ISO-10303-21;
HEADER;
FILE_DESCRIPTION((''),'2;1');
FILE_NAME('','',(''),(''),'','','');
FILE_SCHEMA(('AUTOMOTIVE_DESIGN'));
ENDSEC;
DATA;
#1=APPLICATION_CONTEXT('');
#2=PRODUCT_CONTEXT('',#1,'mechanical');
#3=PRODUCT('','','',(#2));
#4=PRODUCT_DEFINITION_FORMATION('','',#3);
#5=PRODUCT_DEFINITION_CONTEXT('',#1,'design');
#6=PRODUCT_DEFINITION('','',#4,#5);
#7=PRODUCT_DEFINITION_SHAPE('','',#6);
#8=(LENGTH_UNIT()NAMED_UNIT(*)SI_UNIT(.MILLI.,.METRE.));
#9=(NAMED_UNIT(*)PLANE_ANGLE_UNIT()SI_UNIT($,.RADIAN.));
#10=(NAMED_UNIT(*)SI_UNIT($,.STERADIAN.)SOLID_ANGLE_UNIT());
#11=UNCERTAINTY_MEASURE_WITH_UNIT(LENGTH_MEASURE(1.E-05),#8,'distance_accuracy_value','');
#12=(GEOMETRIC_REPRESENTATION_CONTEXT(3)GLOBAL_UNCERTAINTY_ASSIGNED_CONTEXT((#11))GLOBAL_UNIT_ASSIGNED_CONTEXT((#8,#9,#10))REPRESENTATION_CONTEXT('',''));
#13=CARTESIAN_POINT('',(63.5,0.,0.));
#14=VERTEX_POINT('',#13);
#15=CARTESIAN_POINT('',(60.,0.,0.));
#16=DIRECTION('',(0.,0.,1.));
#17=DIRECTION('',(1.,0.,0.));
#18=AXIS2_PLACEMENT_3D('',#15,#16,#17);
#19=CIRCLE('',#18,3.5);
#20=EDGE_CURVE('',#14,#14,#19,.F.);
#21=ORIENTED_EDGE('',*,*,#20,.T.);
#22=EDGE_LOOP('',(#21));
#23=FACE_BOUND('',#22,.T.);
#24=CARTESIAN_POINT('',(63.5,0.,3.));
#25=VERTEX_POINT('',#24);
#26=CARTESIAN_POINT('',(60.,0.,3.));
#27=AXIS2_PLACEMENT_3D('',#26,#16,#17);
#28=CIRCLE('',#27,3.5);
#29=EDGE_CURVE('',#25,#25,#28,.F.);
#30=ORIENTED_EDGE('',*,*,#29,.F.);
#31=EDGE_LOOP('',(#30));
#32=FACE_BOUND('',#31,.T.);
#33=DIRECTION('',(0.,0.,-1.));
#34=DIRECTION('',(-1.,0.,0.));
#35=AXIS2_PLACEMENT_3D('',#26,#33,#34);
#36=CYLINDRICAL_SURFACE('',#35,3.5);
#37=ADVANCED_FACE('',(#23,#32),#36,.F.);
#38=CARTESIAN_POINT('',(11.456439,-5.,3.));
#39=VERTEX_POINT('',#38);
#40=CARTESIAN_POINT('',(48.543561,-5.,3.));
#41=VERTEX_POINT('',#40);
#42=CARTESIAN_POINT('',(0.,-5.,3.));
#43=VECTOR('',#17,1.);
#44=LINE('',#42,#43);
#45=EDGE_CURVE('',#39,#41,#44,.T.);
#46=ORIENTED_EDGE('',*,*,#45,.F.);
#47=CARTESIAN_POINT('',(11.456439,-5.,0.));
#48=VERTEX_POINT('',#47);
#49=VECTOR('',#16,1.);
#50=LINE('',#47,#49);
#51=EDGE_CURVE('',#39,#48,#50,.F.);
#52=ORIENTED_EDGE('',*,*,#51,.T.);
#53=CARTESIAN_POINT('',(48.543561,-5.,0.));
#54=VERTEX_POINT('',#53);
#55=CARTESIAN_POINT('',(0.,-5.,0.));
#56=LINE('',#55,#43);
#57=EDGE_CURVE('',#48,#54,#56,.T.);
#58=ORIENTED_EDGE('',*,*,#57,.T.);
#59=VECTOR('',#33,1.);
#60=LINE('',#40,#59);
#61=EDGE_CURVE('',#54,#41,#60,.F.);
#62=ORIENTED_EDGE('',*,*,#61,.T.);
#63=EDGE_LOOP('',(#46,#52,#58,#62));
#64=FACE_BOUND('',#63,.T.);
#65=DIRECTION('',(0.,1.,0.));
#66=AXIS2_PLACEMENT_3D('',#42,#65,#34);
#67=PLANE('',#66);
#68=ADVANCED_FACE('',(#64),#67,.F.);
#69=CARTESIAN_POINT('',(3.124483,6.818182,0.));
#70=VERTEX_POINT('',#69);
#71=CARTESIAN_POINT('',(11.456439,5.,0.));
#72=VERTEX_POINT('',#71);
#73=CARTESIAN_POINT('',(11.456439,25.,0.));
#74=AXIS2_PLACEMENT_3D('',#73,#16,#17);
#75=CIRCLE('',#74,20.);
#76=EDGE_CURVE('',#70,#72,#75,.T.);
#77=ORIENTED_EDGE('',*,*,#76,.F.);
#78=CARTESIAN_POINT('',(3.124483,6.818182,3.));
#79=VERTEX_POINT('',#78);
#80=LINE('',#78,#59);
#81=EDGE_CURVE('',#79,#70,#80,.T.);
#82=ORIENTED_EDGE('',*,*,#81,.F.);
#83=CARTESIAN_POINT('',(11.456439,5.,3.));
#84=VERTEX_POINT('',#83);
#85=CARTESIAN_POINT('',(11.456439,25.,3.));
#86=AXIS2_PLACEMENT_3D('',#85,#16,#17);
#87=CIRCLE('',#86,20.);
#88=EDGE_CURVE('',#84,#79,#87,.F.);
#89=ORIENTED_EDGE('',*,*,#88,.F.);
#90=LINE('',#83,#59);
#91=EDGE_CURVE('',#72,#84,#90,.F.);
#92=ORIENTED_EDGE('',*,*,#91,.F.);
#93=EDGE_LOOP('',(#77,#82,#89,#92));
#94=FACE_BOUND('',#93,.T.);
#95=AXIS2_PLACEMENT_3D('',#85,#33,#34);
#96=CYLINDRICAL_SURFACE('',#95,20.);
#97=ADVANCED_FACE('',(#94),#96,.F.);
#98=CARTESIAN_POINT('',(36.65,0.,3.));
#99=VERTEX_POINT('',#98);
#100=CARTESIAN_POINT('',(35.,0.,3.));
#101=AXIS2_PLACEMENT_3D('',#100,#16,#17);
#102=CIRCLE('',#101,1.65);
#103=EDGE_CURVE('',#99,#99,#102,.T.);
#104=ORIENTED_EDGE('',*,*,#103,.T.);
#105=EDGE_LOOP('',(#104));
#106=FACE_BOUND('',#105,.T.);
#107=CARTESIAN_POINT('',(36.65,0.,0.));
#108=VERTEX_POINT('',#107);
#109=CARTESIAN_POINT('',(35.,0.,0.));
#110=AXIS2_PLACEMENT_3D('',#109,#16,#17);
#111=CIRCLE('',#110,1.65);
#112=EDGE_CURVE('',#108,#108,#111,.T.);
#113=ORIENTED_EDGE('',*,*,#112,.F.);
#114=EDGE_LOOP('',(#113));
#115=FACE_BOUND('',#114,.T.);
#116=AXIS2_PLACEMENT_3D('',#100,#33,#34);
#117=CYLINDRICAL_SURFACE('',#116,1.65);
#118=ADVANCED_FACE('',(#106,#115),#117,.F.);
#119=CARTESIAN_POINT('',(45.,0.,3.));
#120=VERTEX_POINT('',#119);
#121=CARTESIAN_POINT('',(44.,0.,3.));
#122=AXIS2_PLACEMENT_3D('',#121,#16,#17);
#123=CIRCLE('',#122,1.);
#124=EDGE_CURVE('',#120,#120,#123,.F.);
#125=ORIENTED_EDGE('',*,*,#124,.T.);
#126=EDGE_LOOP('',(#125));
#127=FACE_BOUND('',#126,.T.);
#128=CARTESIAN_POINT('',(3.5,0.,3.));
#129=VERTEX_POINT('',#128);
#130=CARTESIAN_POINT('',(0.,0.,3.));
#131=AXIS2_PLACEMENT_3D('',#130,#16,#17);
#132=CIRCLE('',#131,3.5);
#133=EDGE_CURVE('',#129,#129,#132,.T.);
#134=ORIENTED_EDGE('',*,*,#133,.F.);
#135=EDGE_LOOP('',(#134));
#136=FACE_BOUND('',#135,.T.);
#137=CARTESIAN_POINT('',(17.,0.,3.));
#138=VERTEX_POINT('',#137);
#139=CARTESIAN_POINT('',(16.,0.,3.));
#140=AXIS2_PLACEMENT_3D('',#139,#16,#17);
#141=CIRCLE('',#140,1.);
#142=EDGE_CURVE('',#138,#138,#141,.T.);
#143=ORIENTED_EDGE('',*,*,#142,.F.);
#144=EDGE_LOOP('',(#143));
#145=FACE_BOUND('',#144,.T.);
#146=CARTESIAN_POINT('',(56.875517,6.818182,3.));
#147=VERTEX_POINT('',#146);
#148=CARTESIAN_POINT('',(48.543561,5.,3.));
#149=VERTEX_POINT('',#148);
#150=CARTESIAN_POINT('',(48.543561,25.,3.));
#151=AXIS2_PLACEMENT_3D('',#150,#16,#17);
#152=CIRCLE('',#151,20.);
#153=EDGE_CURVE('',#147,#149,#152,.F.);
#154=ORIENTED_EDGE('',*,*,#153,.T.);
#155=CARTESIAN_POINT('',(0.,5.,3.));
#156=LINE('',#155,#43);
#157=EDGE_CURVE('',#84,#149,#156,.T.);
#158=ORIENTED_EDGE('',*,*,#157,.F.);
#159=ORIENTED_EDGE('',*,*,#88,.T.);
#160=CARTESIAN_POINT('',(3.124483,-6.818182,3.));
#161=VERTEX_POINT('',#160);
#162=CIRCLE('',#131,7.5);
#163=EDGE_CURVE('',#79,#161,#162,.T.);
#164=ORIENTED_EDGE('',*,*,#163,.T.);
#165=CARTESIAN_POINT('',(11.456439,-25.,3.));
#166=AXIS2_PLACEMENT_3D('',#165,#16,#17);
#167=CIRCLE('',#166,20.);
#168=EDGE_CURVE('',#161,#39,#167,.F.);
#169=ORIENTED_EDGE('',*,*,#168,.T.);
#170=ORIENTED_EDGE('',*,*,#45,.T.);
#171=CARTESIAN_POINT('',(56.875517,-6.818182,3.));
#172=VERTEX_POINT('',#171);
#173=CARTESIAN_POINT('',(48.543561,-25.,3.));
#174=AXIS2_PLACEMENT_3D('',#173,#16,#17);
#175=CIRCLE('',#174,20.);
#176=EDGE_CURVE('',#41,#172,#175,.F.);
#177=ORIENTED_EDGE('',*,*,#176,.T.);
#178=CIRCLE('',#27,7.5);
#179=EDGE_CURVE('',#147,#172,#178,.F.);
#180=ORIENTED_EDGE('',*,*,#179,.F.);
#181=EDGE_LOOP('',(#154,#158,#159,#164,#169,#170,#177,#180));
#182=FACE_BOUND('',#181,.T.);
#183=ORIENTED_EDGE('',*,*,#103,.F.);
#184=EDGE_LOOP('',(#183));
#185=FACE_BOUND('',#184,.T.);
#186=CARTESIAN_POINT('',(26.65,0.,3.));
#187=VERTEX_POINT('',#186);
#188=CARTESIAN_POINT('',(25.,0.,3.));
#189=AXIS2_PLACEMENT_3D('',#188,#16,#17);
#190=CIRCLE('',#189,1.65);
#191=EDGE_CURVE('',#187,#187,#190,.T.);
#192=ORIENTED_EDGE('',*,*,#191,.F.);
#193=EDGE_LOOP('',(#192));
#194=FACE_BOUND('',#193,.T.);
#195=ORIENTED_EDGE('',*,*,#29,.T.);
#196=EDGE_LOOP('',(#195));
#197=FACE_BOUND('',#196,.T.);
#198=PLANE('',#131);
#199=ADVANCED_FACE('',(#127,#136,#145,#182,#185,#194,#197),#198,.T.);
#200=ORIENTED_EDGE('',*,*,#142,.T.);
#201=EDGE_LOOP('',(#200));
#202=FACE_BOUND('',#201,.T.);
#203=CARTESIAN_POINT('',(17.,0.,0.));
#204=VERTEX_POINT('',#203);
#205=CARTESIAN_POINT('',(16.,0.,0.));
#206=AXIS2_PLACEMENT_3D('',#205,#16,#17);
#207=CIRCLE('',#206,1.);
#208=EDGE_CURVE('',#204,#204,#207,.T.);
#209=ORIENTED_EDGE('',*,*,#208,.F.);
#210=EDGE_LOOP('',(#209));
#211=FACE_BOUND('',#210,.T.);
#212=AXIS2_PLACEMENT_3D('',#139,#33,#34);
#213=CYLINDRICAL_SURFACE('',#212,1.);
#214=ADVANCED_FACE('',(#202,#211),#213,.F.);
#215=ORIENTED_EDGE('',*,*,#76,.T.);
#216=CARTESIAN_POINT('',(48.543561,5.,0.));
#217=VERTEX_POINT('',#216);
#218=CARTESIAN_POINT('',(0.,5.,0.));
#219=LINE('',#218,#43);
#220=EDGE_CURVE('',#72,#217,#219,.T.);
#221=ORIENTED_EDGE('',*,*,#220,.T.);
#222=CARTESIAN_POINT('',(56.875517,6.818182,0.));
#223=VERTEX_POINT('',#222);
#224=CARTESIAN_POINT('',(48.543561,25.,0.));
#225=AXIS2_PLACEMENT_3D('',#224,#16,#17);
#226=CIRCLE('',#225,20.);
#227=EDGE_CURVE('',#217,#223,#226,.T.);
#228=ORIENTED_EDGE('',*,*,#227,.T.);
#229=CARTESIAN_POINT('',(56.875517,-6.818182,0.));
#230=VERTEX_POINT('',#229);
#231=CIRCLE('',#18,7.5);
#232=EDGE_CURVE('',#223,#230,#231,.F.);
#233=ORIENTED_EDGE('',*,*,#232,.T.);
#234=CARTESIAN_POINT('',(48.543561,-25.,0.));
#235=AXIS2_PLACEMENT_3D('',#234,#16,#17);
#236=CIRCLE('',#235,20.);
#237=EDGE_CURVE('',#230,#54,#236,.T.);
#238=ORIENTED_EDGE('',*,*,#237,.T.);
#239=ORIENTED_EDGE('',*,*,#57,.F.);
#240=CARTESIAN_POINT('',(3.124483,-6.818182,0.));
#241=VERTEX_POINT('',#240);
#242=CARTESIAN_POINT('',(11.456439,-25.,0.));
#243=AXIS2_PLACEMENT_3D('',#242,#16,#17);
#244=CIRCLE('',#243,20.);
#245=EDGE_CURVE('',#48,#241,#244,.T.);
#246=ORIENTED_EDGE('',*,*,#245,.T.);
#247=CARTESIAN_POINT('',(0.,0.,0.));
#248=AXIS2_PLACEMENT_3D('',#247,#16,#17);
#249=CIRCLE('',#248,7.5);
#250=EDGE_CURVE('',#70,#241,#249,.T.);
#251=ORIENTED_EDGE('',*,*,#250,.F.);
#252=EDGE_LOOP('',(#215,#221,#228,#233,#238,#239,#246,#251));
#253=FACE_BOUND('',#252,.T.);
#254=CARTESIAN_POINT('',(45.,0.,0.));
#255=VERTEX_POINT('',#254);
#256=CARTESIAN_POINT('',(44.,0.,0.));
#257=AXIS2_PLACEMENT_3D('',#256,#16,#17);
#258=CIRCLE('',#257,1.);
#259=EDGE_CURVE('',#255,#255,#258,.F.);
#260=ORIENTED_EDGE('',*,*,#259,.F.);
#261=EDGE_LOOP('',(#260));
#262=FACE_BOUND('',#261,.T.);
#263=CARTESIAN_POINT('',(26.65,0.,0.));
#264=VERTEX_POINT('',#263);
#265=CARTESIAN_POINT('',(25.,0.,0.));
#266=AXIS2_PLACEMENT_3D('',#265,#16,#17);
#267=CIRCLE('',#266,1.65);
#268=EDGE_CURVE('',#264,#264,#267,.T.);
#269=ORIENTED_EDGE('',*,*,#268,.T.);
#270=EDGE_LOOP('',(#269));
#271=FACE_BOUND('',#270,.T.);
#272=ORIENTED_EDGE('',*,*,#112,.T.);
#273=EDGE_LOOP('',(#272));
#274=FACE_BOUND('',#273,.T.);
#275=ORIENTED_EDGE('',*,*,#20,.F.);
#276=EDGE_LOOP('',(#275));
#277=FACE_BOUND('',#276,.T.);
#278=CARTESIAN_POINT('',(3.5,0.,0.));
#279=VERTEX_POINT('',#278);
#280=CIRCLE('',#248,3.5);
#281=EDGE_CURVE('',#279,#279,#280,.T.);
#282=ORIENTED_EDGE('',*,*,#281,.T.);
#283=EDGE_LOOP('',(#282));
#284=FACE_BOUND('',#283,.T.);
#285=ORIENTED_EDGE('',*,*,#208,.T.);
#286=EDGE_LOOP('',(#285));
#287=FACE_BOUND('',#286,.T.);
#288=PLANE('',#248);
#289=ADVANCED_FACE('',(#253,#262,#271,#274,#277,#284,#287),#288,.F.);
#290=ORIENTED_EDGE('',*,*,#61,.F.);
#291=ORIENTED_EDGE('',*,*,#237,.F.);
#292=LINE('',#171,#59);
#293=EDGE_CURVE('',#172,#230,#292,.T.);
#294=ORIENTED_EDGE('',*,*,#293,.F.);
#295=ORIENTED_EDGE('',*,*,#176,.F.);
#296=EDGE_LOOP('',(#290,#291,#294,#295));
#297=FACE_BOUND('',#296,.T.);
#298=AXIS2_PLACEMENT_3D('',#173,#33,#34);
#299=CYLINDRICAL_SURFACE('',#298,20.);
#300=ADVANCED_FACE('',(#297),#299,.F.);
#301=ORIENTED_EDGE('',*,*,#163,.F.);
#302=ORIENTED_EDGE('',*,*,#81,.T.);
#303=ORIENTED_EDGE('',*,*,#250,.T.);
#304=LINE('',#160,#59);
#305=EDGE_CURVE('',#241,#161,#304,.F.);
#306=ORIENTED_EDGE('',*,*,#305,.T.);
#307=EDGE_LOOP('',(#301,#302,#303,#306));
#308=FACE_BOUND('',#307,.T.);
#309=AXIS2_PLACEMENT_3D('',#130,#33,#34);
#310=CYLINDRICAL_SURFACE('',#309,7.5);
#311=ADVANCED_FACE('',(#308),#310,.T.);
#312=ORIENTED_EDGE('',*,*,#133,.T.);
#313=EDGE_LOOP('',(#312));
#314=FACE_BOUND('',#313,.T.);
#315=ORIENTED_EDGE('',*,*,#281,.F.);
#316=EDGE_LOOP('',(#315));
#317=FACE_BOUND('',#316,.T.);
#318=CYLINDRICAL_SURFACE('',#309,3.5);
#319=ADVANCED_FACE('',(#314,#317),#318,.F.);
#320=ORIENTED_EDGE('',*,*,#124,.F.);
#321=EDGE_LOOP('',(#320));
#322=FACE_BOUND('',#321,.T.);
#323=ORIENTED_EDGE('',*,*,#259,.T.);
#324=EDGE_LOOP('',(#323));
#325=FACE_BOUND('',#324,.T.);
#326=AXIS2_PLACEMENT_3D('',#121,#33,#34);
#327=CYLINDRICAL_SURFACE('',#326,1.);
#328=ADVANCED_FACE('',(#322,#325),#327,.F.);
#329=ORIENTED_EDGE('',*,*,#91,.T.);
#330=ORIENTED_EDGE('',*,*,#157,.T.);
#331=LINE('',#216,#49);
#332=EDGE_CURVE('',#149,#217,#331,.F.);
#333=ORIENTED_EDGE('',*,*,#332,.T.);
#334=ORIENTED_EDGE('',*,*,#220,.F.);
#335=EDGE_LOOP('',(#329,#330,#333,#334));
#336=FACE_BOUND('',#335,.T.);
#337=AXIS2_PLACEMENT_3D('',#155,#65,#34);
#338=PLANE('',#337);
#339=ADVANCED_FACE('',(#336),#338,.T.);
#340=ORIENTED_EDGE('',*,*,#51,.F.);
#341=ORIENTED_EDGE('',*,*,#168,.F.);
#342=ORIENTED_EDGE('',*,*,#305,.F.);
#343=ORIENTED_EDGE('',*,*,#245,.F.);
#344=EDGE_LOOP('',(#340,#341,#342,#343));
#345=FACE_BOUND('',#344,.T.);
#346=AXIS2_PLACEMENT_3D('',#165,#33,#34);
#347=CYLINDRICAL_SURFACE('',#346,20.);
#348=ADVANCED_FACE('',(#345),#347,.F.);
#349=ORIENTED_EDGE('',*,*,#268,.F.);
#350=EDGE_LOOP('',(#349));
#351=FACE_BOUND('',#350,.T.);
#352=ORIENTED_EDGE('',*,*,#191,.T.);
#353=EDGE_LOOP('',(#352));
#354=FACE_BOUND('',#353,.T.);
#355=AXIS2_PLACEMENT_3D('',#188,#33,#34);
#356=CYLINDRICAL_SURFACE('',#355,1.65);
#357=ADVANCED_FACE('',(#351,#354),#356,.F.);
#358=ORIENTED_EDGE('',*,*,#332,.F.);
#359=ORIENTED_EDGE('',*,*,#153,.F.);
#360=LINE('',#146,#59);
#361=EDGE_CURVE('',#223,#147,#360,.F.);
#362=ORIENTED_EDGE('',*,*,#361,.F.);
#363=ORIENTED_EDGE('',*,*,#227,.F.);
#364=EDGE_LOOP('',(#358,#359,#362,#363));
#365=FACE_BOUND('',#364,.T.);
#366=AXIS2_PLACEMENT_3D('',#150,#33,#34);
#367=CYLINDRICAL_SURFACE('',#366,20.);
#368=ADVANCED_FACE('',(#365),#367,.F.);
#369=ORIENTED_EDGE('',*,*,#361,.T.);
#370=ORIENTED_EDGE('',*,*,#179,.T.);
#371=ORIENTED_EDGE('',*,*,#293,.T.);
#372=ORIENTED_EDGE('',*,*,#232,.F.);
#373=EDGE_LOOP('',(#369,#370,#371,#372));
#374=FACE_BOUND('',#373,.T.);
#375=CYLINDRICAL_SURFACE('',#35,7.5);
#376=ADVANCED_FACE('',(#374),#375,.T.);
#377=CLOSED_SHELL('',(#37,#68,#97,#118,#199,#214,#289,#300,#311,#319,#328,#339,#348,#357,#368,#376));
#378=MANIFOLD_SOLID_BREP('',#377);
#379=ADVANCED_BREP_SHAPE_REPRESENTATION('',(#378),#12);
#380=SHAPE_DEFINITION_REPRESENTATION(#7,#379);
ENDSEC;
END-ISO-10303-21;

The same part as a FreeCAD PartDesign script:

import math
import FreeCAD as App
import Part
import Sketcher
from FreeCAD import Vector


def edges_at(feature, points):
    """Names of the edges that pass closest to the given points."""
    edges = feature.Shape.Edges
    near = lambda p: min(range(len(edges)), key=lambda i: edges[i].distToShape(Part.Vertex(*p))[0])
    return sorted({f"Edge{near(p) + 1}" for p in points})

doc = App.newDocument("Part")
body = doc.addObject("PartDesign::Body", "Body")

# Sketch on XY plane
sketch1 = body.newObject("Sketcher::SketchObject", "Sketch")
sketch1.AttachmentSupport = (doc.getObject("XY_Plane"), [""])
sketch1.MapMode = "FlatFace"
sketch1.addGeometry(Part.LineSegment(Vector(5.6, -5, 0), Vector(54.4, -5, 0)), False)
sketch1.addGeometry(Part.ArcOfCircle(Part.Circle(Vector(60, 0, 0), Vector(0, 0, 1), 7.5), math.radians(-138), math.radians(138)), False)
sketch1.addGeometry(Part.LineSegment(Vector(54.4, 5, 0), Vector(5.6, 5, 0)), False)
sketch1.addGeometry(Part.ArcOfCircle(Part.Circle(Vector(0, 0, 0), Vector(0, 0, 1), 7.5), math.radians(42), math.radians(318)), False)
sketch1.addGeometry(Part.Circle(Vector(0, 0, 0), Vector(0, 0, 1), 3.5), False)
sketch1.addGeometry(Part.Circle(Vector(16, 0, 0), Vector(0, 0, 1), 1), False)
sketch1.addGeometry(Part.Circle(Vector(25, 0, 0), Vector(0, 0, 1), 1.6), False)
sketch1.addGeometry(Part.Circle(Vector(35, 0, 0), Vector(0, 0, 1), 1.6), False)
sketch1.addGeometry(Part.Circle(Vector(44, 0, 0), Vector(0, 0, 1), 1), False)
sketch1.addGeometry(Part.Circle(Vector(60, 0, 0), Vector(0, 0, 1), 3.5), False)
sketch1.addConstraint(Sketcher.Constraint("Coincident", 0, 2, 1, 1))
sketch1.addConstraint(Sketcher.Constraint("Coincident", 1, 2, 2, 1))
sketch1.addConstraint(Sketcher.Constraint("Coincident", 2, 2, 3, 1))
sketch1.addConstraint(Sketcher.Constraint("Coincident", 3, 2, 0, 1))
sketch1.addConstraint(Sketcher.Constraint("Horizontal", 0))
sketch1.addConstraint(Sketcher.Constraint("Horizontal", 2))
sketch1.addConstraint(Sketcher.Constraint("Coincident", 3, 3, -1, 1))
sketch1.addConstraint(Sketcher.Constraint("Coincident", 4, 3, -1, 1))
sketch1.addConstraint(Sketcher.Constraint("Coincident", 9, 3, 1, 3))
sketch1.addConstraint(Sketcher.Constraint("Equal", 1, 3))
sketch1.addConstraint(Sketcher.Constraint("Equal", 6, 7))
sketch1.addConstraint(Sketcher.Constraint("Equal", 5, 8))
sketch1.addConstraint(Sketcher.Constraint("Equal", 4, 9))
sketch1.addConstraint(Sketcher.Constraint("Symmetric", 0, 2, 1, 2, -1))
sketch1.addConstraint(Sketcher.Constraint("PointOnObject", 5, 3, -1))
sketch1.addConstraint(Sketcher.Constraint("PointOnObject", 6, 3, -1))
sketch1.addConstraint(Sketcher.Constraint("PointOnObject", 7, 3, -1))
sketch1.addConstraint(Sketcher.Constraint("PointOnObject", 8, 3, -1))
sketch1.addConstraint(Sketcher.Constraint("Diameter", 4, 7.0))
sketch1.addConstraint(Sketcher.Constraint("Diameter", 5, 2.0))
sketch1.addConstraint(Sketcher.Constraint("Diameter", 6, 3.3))
sketch1.addConstraint(Sketcher.Constraint("Radius", 1, 7.5))
sketch1.addConstraint(Sketcher.Constraint("DistanceX", -1, 1, 1, 3, 60.0))
sketch1.addConstraint(Sketcher.Constraint("DistanceX", -1, 1, 5, 3, 16.0))
sketch1.addConstraint(Sketcher.Constraint("DistanceX", -1, 1, 6, 3, 25.0))
sketch1.addConstraint(Sketcher.Constraint("DistanceX", -1, 1, 7, 3, 35.0))
sketch1.addConstraint(Sketcher.Constraint("DistanceX", -1, 1, 8, 3, 44.0))
sketch1.addConstraint(Sketcher.Constraint("DistanceY", 0, 2, -1, 1, 5.0))
pad1 = body.newObject("PartDesign::Pad", "Pad")
pad1.Profile = sketch1
pad1.Length = 3
doc.recompute()

fillet = body.newObject("PartDesign::Fillet", "Fillet")
fillet.Base = (pad1, edges_at(pad1, [
    (54.41, -5, 1.5),
    (5.59, -5, 1.5),
    (5.59, 5, 1.5),
    (54.41, 5, 1.5),
]))
fillet.Radius = 20

doc.recompute()
